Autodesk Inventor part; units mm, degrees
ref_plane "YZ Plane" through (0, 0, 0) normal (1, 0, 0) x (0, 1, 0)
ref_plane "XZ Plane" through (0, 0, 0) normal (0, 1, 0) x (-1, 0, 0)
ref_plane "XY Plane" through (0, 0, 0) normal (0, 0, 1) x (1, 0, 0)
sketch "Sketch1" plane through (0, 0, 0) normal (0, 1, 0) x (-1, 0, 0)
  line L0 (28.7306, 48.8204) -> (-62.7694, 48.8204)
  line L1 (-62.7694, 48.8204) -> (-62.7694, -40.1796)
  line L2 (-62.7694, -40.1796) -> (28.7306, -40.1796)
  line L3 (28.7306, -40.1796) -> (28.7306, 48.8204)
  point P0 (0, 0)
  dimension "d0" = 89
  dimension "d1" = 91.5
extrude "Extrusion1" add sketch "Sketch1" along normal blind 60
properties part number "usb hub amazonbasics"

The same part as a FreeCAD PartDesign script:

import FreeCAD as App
import Part
import Sketcher

V = App.Vector


def add_polygon(sketch, points):
    """Adds a closed chain of lines whose ends are joined by coincident constraints."""
    first, n = sketch.GeometryCount, len(points)
    for a, b in zip(points, points[1:] + points[:1]):
        sketch.addGeometry(Part.LineSegment(App.Vector(*a, 0), App.Vector(*b, 0)), False)
    for i in range(n):
        sketch.addConstraint(Sketcher.Constraint("Coincident", first + i, 2, first + (i + 1) % n, 1))

doc = App.newDocument("Part")
body = doc.addObject("PartDesign::Body", "Body")

sketch1 = doc.addObject("Sketcher::SketchObject", "Sketch")
body.addObject(sketch1)
sketch1.AttachmentSupport = (doc.XZ_Plane, [""])
sketch1.MapMode = "FlatFace"
add_polygon(sketch1, [(-28.7306, -40.1796), (-28.7306, 48.8204), (62.7694, 48.8204), (62.7694, -40.1796)])
sketch1.addConstraint(Sketcher.Constraint("Vertical", 0))
sketch1.addConstraint(Sketcher.Constraint("Horizontal", 1))
sketch1.addConstraint(Sketcher.Constraint("Vertical", 2))
sketch1.addConstraint(Sketcher.Constraint("Horizontal", 3))
sketch1.addConstraint(Sketcher.Constraint("DistanceY", 0, 1, 0, 2, 89.0))
sketch1.addConstraint(Sketcher.Constraint("DistanceX", 1, 1, 1, 2, 91.5))
sketch1.addConstraint(Sketcher.Constraint("DistanceX", 0, 2, -1, 1, 28.7306))
sketch1.addConstraint(Sketcher.Constraint("DistanceY", -1, 1, 0, 2, 48.8204))
pad1 = doc.addObject("PartDesign::Pad", "Pad")
body.addObject(pad1)
pad1.Profile = sketch1
pad1.Length = 60
pad1.Reversed = True

doc.recompute()
